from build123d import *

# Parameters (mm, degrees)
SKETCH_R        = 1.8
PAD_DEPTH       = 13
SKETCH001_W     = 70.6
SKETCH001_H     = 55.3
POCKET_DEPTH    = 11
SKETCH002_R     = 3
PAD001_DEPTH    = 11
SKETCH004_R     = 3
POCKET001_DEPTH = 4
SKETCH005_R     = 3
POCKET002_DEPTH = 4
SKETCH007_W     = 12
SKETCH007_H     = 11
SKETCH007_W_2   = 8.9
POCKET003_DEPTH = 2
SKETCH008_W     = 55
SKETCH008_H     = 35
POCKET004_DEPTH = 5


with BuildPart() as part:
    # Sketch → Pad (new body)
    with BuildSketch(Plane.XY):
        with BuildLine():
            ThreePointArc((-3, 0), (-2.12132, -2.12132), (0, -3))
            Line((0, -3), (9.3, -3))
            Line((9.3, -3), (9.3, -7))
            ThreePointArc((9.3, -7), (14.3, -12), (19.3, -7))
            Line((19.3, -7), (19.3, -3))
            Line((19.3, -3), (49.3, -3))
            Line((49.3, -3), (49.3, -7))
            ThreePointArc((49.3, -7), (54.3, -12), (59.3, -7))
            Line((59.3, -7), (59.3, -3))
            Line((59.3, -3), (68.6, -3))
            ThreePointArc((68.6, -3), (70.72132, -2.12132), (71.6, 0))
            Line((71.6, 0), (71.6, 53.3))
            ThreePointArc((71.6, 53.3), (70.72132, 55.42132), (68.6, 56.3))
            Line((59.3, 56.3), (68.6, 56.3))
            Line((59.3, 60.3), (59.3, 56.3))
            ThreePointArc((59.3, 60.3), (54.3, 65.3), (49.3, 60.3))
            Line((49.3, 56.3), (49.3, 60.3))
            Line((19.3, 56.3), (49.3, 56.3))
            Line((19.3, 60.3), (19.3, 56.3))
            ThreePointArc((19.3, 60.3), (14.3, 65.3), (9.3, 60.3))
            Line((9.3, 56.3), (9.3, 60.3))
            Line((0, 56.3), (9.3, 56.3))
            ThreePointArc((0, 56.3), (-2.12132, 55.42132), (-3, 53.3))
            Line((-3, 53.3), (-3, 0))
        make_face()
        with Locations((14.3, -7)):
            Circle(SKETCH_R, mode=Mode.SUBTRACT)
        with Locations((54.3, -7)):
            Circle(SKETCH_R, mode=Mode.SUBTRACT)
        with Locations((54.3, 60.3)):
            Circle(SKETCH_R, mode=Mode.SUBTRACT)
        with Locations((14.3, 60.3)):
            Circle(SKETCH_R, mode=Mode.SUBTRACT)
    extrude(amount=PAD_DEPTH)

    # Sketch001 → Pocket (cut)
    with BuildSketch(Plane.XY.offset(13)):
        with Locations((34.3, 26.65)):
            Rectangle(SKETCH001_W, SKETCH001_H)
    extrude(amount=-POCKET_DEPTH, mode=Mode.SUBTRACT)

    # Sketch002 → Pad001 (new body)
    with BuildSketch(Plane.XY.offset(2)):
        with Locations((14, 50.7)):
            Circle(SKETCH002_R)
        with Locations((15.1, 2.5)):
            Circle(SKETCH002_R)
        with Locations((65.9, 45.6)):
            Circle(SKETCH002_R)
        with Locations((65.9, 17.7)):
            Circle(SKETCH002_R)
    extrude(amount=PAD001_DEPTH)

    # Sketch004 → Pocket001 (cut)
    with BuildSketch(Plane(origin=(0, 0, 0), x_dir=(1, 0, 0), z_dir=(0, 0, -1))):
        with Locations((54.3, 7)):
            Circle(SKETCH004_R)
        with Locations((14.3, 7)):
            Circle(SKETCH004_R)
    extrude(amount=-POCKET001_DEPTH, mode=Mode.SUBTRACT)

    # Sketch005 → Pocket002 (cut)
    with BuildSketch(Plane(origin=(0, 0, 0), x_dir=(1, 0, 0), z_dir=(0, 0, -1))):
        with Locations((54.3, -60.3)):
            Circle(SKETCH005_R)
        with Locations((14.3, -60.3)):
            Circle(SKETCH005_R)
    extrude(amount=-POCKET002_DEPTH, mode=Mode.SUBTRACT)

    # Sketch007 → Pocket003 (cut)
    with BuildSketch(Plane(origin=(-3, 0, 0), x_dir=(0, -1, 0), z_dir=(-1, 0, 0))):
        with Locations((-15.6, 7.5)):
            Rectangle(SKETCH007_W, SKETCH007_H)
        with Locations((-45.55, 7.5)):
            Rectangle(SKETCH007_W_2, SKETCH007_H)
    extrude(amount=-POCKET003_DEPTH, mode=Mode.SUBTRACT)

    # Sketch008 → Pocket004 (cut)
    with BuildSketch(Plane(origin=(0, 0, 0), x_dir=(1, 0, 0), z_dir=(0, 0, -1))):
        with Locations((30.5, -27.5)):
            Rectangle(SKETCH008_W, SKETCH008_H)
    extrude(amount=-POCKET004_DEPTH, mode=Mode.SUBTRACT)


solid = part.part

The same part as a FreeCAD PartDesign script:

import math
import FreeCAD as App
import Part
import Sketcher

doc = App.newDocument("Part")
body = doc.addObject("PartDesign::Body", "Body")

# Sketch on XY plane
sketch1 = body.newObject("Sketcher::SketchObject", "Sketch")
sketch1.AttachmentSupport = (doc.getObject("XY_Plane"), [""])
sketch1.MapMode = "FlatFace"
sketch1.addGeometry(Part.ArcOfCircle(Part.Circle(App.Vector(0, 0, 0), App.Vector(0, 0, 1), 3), math.radians(-180), math.radians(-90)), False)
sketch1.addGeometry(Part.LineSegment(App.Vector(0, -3, 0), App.Vector(9.3, -3, 0)), False)
sketch1.addGeometry(Part.LineSegment(App.Vector(9.3, -3, 0), App.Vector(9.3, -7, 0)), False)
sketch1.addGeometry(Part.ArcOfCircle(Part.Circle(App.Vector(14.3, -7, 0), App.Vector(0, 0, 1), 5), math.radians(180), math.radians(360)), False)
sketch1.addGeometry(Part.LineSegment(App.Vector(19.3, -7, 0), App.Vector(19.3, -3, 0)), False)
sketch1.addGeometry(Part.LineSegment(App.Vector(19.3, -3, 0), App.Vector(49.3, -3, 0)), False)
sketch1.addGeometry(Part.LineSegment(App.Vector(49.3, -3, 0), App.Vector(49.3, -7, 0)), False)
sketch1.addGeometry(Part.ArcOfCircle(Part.Circle(App.Vector(54.3, -7, 0), App.Vector(0, 0, 1), 5), math.radians(180), math.radians(360)), False)
sketch1.addGeometry(Part.LineSegment(App.Vector(59.3, -7, 0), App.Vector(59.3, -3, 0)), False)
sketch1.addGeometry(Part.LineSegment(App.Vector(59.3, -3, 0), App.Vector(68.6, -3, 0)), False)
sketch1.addGeometry(Part.ArcOfCircle(Part.Circle(App.Vector(68.6, 0, 0), App.Vector(0, 0, 1), 3), math.radians(-90), math.radians(0)), False)
sketch1.addGeometry(Part.LineSegment(App.Vector(71.6, 0, 0), App.Vector(71.6, 53.3, 0)), False)
sketch1.addGeometry(Part.ArcOfCircle(Part.Circle(App.Vector(68.6, 53.3, 0), App.Vector(0, 0, 1), 3), math.radians(0), math.radians(90)), False)
sketch1.addGeometry(Part.LineSegment(App.Vector(68.6, 56.3, 0), App.Vector(59.3, 56.3, 0)), False)
sketch1.addGeometry(Part.LineSegment(App.Vector(59.3, 56.3, 0), App.Vector(59.3, 60.3, 0)), False)
sketch1.addGeometry(Part.ArcOfCircle(Part.Circle(App.Vector(54.3, 60.3, 0), App.Vector(0, 0, 1), 5), math.radians(0), math.radians(180)), False)
sketch1.addGeometry(Part.LineSegment(App.Vector(49.3, 60.3, 0), App.Vector(49.3, 56.3, 0)), False)
sketch1.addGeometry(Part.LineSegment(App.Vector(49.3, 56.3, 0), App.Vector(19.3, 56.3, 0)), False)
sketch1.addGeometry(Part.LineSegment(App.Vector(19.3, 56.3, 0), App.Vector(19.3, 60.3, 0)), False)
sketch1.addGeometry(Part.ArcOfCircle(Part.Circle(App.Vector(14.3, 60.3, 0), App.Vector(0, 0, 1), 5), math.radians(0), math.radians(180)), False)
sketch1.addGeometry(Part.LineSegment(App.Vector(9.3, 60.3, 0), App.Vector(9.3, 56.3, 0)), False)
sketch1.addGeometry(Part.LineSegment(App.Vector(9.3, 56.3, 0), App.Vector(0, 56.3, 0)), False)
sketch1.addGeometry(Part.ArcOfCircle(Part.Circle(App.Vector(0, 53.3, 0), App.Vector(0, 0, 1), 3), math.radians(90), math.radians(180)), False)
sketch1.addGeometry(Part.LineSegment(App.Vector(-3, 53.3, 0), App.Vector(-3, 0, 0)), False)
sketch1.addGeometry(Part.Circle(App.Vector(14.3, -7, 0), App.Vector(0, 0, 1), 1.8), False)
sketch1.addGeometry(Part.Circle(App.Vector(54.3, -7, 0), App.Vector(0, 0, 1), 1.8), False)
sketch1.addGeometry(Part.Circle(App.Vector(14.3, 60.3, 0), App.Vector(0, 0, 1), 1.8), False)
sketch1.addGeometry(Part.Circle(App.Vector(54.3, 60.3, 0), App.Vector(0, 0, 1), 1.8), False)
sketch1.addConstraint(Sketcher.Constraint("Tangent", 0, 2, 1, 1))
sketch1.addConstraint(Sketcher.Constraint("Coincident", 1, 2, 2, 1))
sketch1.addConstraint(Sketcher.Constraint("Tangent", 2, 2, 3, 1))
sketch1.addConstraint(Sketcher.Constraint("Tangent", 3, 2, 4, 1))
sketch1.addConstraint(Sketcher.Constraint("Coincident", 4, 2, 5, 1))
sketch1.addConstraint(Sketcher.Constraint("Coincident", 5, 2, 6, 1))
sketch1.addConstraint(Sketcher.Constraint("Tangent", 6, 2, 7, 1))
sketch1.addConstraint(Sketcher.Constraint("Tangent", 7, 2, 8, 1))
sketch1.addConstraint(Sketcher.Constraint("Coincident", 8, 2, 9, 1))
sketch1.addConstraint(Sketcher.Constraint("Tangent", 9, 2, 10, 1))
sketch1.addConstraint(Sketcher.Constraint("Tangent", 10, 2, 11, 1))
sketch1.addConstraint(Sketcher.Constraint("Tangent", 11, 2, 12, 1))
sketch1.addConstraint(Sketcher.Constraint("Tangent", 12, 2, 13, 1))
sketch1.addConstraint(Sketcher.Constraint("Coincident", 13, 2, 14, 1))
sketch1.addConstraint(Sketcher.Constraint("Tangent", 14, 2, 15, 1))
sketch1.addConstraint(Sketcher.Constraint("Tangent", 15, 2, 16, 1))
sketch1.addConstraint(Sketcher.Constraint("Coincident", 16, 2, 17, 1))
sketch1.addConstraint(Sketcher.Constraint("Coincident", 17, 2, 18, 1))
sketch1.addConstraint(Sketcher.Constraint("Tangent", 18, 2, 19, 1))
sketch1.addConstraint(Sketcher.Constraint("Tangent", 19, 2, 20, 1))
sketch1.addConstraint(Sketcher.Constraint("Coincident", 20, 2, 21, 1))
sketch1.addConstraint(Sketcher.Constraint("Tangent", 21, 2, 22, 1))
sketch1.addConstraint(Sketcher.Constraint("Tangent", 22, 2, 23, 1))
sketch1.addConstraint(Sketcher.Constraint("Tangent", 23, 2, 0, 1))
sketch1.addConstraint(Sketcher.Constraint("Horizontal", 1))
sketch1.addConstraint(Sketcher.Constraint("Vertical", 2))
sketch1.addConstraint(Sketcher.Constraint("Vertical", 4))
sketch1.addConstraint(Sketcher.Constraint("Horizontal", 5))
sketch1.addConstraint(Sketcher.Constraint("Vertical", 6))
sketch1.addConstraint(Sketcher.Constraint("Vertical", 8))
sketch1.addConstraint(Sketcher.Constraint("Horizontal", 9))
sketch1.addConstraint(Sketcher.Constraint("Vertical", 11))
sketch1.addConstraint(Sketcher.Constraint("Horizontal", 13))
sketch1.addConstraint(Sketcher.Constraint("Vertical", 14))
sketch1.addConstraint(Sketcher.Constraint("Vertical", 16))
sketch1.addConstraint(Sketcher.Constraint("Horizontal", 17))
sketch1.addConstraint(Sketcher.Constraint("Vertical", 18))
sketch1.addConstraint(Sketcher.Constraint("Vertical", 20))
sketch1.addConstraint(Sketcher.Constraint("Horizontal", 21))
sketch1.addConstraint(Sketcher.Constraint("Vertical", 23))
sketch1.addConstraint(Sketcher.Constraint("Coincident", 0, 3, -1, 1))
sketch1.addConstraint(Sketcher.Constraint("Coincident", 24, 3, 3, 3))
sketch1.addConstraint(Sketcher.Constraint("Coincident", 25, 3, 7, 3))
sketch1.addConstraint(Sketcher.Constraint("Coincident", 26, 3, 19, 3))
sketch1.addConstraint(Sketcher.Constraint("Coincident", 27, 3, 15, 3))
sketch1.addConstraint(Sketcher.Constraint("Equal", 3, 7))
sketch1.addConstraint(Sketcher.Constraint("Equal", 0, 10))
sketch1.addConstraint(Sketcher.Constraint("Equal", 10, 12))
sketch1.addConstraint(Sketcher.Constraint("Equal", 7, 15))
sketch1.addConstraint(Sketcher.Constraint("Equal", 15, 19))
sketch1.addConstraint(Sketcher.Constraint("Equal", 12, 22))
sketch1.addConstraint(Sketcher.Constraint("Equal", 24, 25))
sketch1.addConstraint(Sketcher.Constraint("Equal", 25, 26))
sketch1.addConstraint(Sketcher.Constraint("Equal", 26, 27))
sketch1.addConstraint(Sketcher.Constraint("PointOnObject", 10, 3, -1))
sketch1.addConstraint(Sketcher.Constraint("Horizontal", 3, 3, 7, 3))
sketch1.addConstraint(Sketcher.Constraint("Horizontal", 15, 3, 19, 3))
sketch1.addConstraint(Sketcher.Constraint("Horizontal", 12, 3, 22, 3))
sketch1.addConstraint(Sketcher.Constraint("Horizontal", 1, 2, 4, 2))
sketch1.addConstraint(Sketcher.Constraint("Horizontal", 13, 2, 16, 2))
sketch1.addConstraint(Sketcher.Constraint("Vertical", 7, 3, 15, 3))
sketch1.addConstraint(Sketcher.Constraint("Vertical", 3, 3, 19, 3))
sketch1.addConstraint(Sketcher.Constraint("Equal", 1, 9))
sketch1.addConstraint(Sketcher.Constraint("Equal", 8, 14))
sketch1.addConstraint(Sketcher.Constraint("Radius", 0, 3.000001))
sketch1.addConstraint(Sketcher.Constraint("Radius", 3, 5.0))
sketch1.addConstraint(Sketcher.Constraint("Diameter", 24, 3.6))
sketch1.addConstraint(Sketcher.Constraint("DistanceX", 5, 1, 5, 2, 30.0))
sketch1.addConstraint(Sketcher.Constraint("DistanceY", 2, 2, 2, 1, 4.0))
sketch1.addConstraint(Sketcher.Constraint("DistanceX", 1, 1, 1, 2, 9.3))
sketch1.addConstraint(Sketcher.Constraint("DistanceY", 11, 1, 11, 2, 53.3))
pad1 = body.newObject("PartDesign::Pad", "Pad")
pad1.Profile = sketch1
pad1.Length = 13

# Sketch on XY plane
sketch2 = body.newObject("Sketcher::SketchObject", "Sketch001")
sketch2.AttachmentSupport = (doc.getObject("XY_Plane"), [""])
sketch2.MapMode = "FlatFace"
sketch2.AttachmentOffset = App.Placement(App.Vector(0, 0, 13), App.Rotation())
sketch2.addGeometry(Part.LineSegment(App.Vector(-1, 54, 0), App.Vector(-1, -1, 0)), False)
sketch2.addGeometry(Part.LineSegment(App.Vector(-1, -1, 0), App.Vector(70, -1, 0)), False)
sketch2.addGeometry(Part.LineSegment(App.Vector(70, -1, 0), App.Vector(70, 54, 0)), False)
sketch2.addGeometry(Part.LineSegment(App.Vector(70, 54, 0), App.Vector(-1, 54, 0)), False)
sketch2.addConstraint(Sketcher.Constraint("Coincident", 0, 2, 1, 1))
sketch2.addConstraint(Sketcher.Constraint("Coincident", 1, 2, 2, 1))
sketch2.addConstraint(Sketcher.Constraint("Coincident", 2, 2, 3, 1))
sketch2.addConstraint(Sketcher.Constraint("Coincident", 3, 2, 0, 1))
sketch2.addConstraint(Sketcher.Constraint("Vertical", 0))
sketch2.addConstraint(Sketcher.Constraint("Horizontal", 1))
sketch2.addConstraint(Sketcher.Constraint("Vertical", 2))
sketch2.addConstraint(Sketcher.Constraint("Horizontal", 3))
sketch2.addConstraint(Sketcher.Constraint("DistanceX", 1, 1, 1, 2, 70.6))
sketch2.addConstraint(Sketcher.Constraint("DistanceY", 0, 2, 0, 1, 55.3))
sketch2.addConstraint(Sketcher.Constraint("DistanceX", 0, 2, -1, 1, 1.0))
sketch2.addConstraint(Sketcher.Constraint("DistanceY", 0, 2, -1, 1, 1.0))
pocket1 = body.newObject("PartDesign::Pocket", "Pocket")
pocket1.Profile = sketch2
pocket1.Length = 11

# Sketch on XY plane
sketch3 = body.newObject("Sketcher::SketchObject", "Sketch002")
sketch3.AttachmentSupport = (doc.getObject("XY_Plane"), [""])
sketch3.MapMode = "FlatFace"
sketch3.AttachmentOffset = App.Placement(App.Vector(0, 0, 2), App.Rotation())
sketch3.addGeometry(Part.Circle(App.Vector(14, 50.7, 0), App.Vector(0, 0, 1), 3), False)
sketch3.addGeometry(Part.Circle(App.Vector(15.1, 2.5, 0), App.Vector(0, 0, 1), 3), False)
sketch3.addGeometry(Part.Circle(App.Vector(65.9, 45.6, 0), App.Vector(0, 0, 1), 3), False)
sketch3.addGeometry(Part.Circle(App.Vector(65.9, 17.7, 0), App.Vector(0, 0, 1), 3), False)
sketch3.addConstraint(Sketcher.Constraint("Equal", 0, 1))
sketch3.addConstraint(Sketcher.Constraint("Equal", 1, 2))
sketch3.addConstraint(Sketcher.Constraint("Equal", 2, 3))
sketch3.addConstraint(Sketcher.Constraint("Vertical", 2, 3, 3, 3))
sketch3.addConstraint(Sketcher.Constraint("Diameter", 0, 6.0))
sketch3.addConstraint(Sketcher.Constraint("DistanceX", -1, 1, 0, 3, 14.0))
sketch3.addConstraint(Sketcher.Constraint("DistanceY", 3, 3, 0, 3, 33.0))
sketch3.addConstraint(Sketcher.Constraint("DistanceY", -1, 1, 0, 3, 50.7))
sketch3.addConstraint(Sketcher.Constraint("DistanceX", -1, 1, 1, 3, 15.1))
sketch3.addConstraint(Sketcher.Constraint("DistanceY", -1, 1, 1, 3, 2.5))
sketch3.addConstraint(Sketcher.Constraint("DistanceX", -1, 1, 2, 3, 65.9))
sketch3.addConstraint(Sketcher.Constraint("DistanceY", -1, 1, 2, 3, 45.6))
pad2 = body.newObject("PartDesign::Pad", "Pad001")
pad2.Profile = sketch3
pad2.Length = 11

# Sketch on XY plane
sketch4 = body.newObject("Sketcher::SketchObject", "Sketch003")
sketch4.AttachmentSupport = (doc.getObject("XY_Plane"), [""])
sketch4.MapMode = "FlatFace"
sketch4.addGeometry(Part.Circle(App.Vector(54.3, -7, 0), App.Vector(0, 0, 1), 3), False)
sketch4.addGeometry(Part.Circle(App.Vector(14.3, -7, 0), App.Vector(0, 0, 1), 3), False)
sketch4.addConstraint(Sketcher.Constraint("Equal", 0, 1))
sketch4.addConstraint(Sketcher.Constraint("Horizontal", 0, 3, 1, 3))
sketch4.addConstraint(Sketcher.Constraint("Diameter", 0, 6.0))
sketch4.addConstraint(Sketcher.Constraint("DistanceY", 0, 3, -1, 1, 7.0))
sketch4.addConstraint(Sketcher.Constraint("DistanceX", 1, 3, 0, 3, 40.0))
sketch4.addConstraint(Sketcher.Constraint("DistanceX", -1, 1, 0, 3, 54.3))
pocket2 = body.newObject("PartDesign::Pocket", "Pocket001")
pocket2.Profile = sketch4
pocket2.Length = 4
pocket2.Reversed = True

# Sketch on XY plane
sketch5 = body.newObject("Sketcher::SketchObject", "Sketch004")
sketch5.AttachmentSupport = (doc.getObject("XY_Plane"), [""])
sketch5.MapMode = "FlatFace"
sketch5.addGeometry(Part.Circle(App.Vector(54.3, 60.3, 0), App.Vector(0, 0, 1), 3), False)
sketch5.addGeometry(Part.Circle(App.Vector(14.3, 60.3, 0), App.Vector(0, 0, 1), 3), False)
sketch5.addConstraint(Sketcher.Constraint("Equal", 0, 1))
sketch5.addConstraint(Sketcher.Constraint("Horizontal", 0, 3, 1, 3))
sketch5.addConstraint(Sketcher.Constraint("Diameter", 0, 6.0))
sketch5.addConstraint(Sketcher.Constraint("DistanceX", 1, 3, 0, 3, 40.0))
sketch5.addConstraint(Sketcher.Constraint("DistanceX", -1, 1, 0, 3, 54.3))
sketch5.addConstraint(Sketcher.Constraint("DistanceY", -1, 1, 0, 3, 60.3))
pocket3 = body.newObject("PartDesign::Pocket", "Pocket002")
pocket3.Profile = sketch5
pocket3.Length = 4
pocket3.Reversed = True

# Sketch on YZ plane
sketch6 = body.newObject("Sketcher::SketchObject", "Sketch005")
sketch6.AttachmentSupport = (doc.getObject("YZ_Plane"), [""])
sketch6.MapMode = "FlatFace"
sketch6.AttachmentOffset = App.Placement(App.Vector(0, 0, -3), App.Rotation())
sketch6.addGeometry(Part.LineSegment(App.Vector(22, 13, 0), App.Vector(22, 2, 0)), False)
sketch6.addGeometry(Part.LineSegment(App.Vector(22, 2, 0), App.Vector(10, 2, 0)), False)
sketch6.addGeometry(Part.LineSegment(App.Vector(10, 2, 0), App.Vector(10, 13, 0)), False)
sketch6.addGeometry(Part.LineSegment(App.Vector(10, 13, 0), App.Vector(22, 13, 0)), False)
sketch6.addGeometry(Part.LineSegment(App.Vector(50, 13, 0), App.Vector(50, 2, 0)), False)
sketch6.addGeometry(Part.LineSegment(App.Vector(50, 2, 0), App.Vector(41, 2, 0)), False)
sketch6.addGeometry(Part.LineSegment(App.Vector(41, 2, 0), App.Vector(41, 13, 0)), False)
sketch6.addGeometry(Part.LineSegment(App.Vector(41, 13, 0), App.Vector(50, 13, 0)), False)
sketch6.addConstraint(Sketcher.Constraint("Coincident", 0, 2, 1, 1))
sketch6.addConstraint(Sketcher.Constraint("Coincident", 1, 2, 2, 1))
sketch6.addConstraint(Sketcher.Constraint("Coincident", 2, 2, 3, 1))
sketch6.addConstraint(Sketcher.Constraint("Coincident", 3, 2, 0, 1))
sketch6.addConstraint(Sketcher.Constraint("Coincident", 4, 2, 5, 1))
sketch6.addConstraint(Sketcher.Constraint("Coincident", 5, 2, 6, 1))
sketch6.addConstraint(Sketcher.Constraint("Coincident", 6, 2, 7, 1))
sketch6.addConstraint(Sketcher.Constraint("Coincident", 7, 2, 4, 1))
sketch6.addConstraint(Sketcher.Constraint("Vertical", 0))
sketch6.addConstraint(Sketcher.Constraint("Horizontal", 1))
sketch6.addConstraint(Sketcher.Constraint("Vertical", 2))
sketch6.addConstraint(Sketcher.Constraint("Horizontal", 3))
sketch6.addConstraint(Sketcher.Constraint("Vertical", 4))
sketch6.addConstraint(Sketcher.Constraint("Horizontal", 5))
sketch6.addConstraint(Sketcher.Constraint("Vertical", 6))
sketch6.addConstraint(Sketcher.Constraint("Horizontal", 7))
sketch6.addConstraint(Sketcher.Constraint("Horizontal", 1, 2, 4, 2))
sketch6.addConstraint(Sketcher.Constraint("Horizontal", 3, 2, 6, 2))
sketch6.addConstraint(Sketcher.Constraint("DistanceX", 1, 2, 1, 1, 12.0))
sketch6.addConstraint(Sketcher.Constraint("DistanceY", 0, 2, 0, 1, 11.0))
sketch6.addConstraint(Sketcher.Constraint("DistanceX", 5, 2, 5, 1, 8.9))
sketch6.addConstraint(Sketcher.Constraint("DistanceY", -1, 1, 0, 2, 2.0))
sketch6.addConstraint(Sketcher.Constraint("DistanceX", -1, 1, 4, 2, 50.0))
sketch6.addConstraint(Sketcher.Constraint("DistanceX", -1, 1, 0, 2, 21.6))
pocket4 = body.newObject("PartDesign::Pocket", "Pocket003")
pocket4.Profile = sketch6
pocket4.Length = 2
pocket4.Reversed = True

# Sketch on XY plane
sketch7 = body.newObject("Sketcher::SketchObject", "Sketch006")
sketch7.AttachmentSupport = (doc.getObject("XY_Plane"), [""])
sketch7.MapMode = "FlatFace"
sketch7.addGeometry(Part.LineSegment(App.Vector(3, 10, 0), App.Vector(3, 45, 0)), False)
sketch7.addGeometry(Part.LineSegment(App.Vector(3, 45, 0), App.Vector(58, 45, 0)), False)
sketch7.addGeometry(Part.LineSegment(App.Vector(58, 45, 0), App.Vector(58, 10, 0)), False)
sketch7.addGeometry(Part.LineSegment(App.Vector(58, 10, 0), App.Vector(3, 10, 0)), False)
sketch7.addConstraint(Sketcher.Constraint("Coincident", 0, 2, 1, 1))
sketch7.addConstraint(Sketcher.Constraint("Coincident", 1, 2, 2, 1))
sketch7.addConstraint(Sketcher.Constraint("Coincident", 2, 2, 3, 1))
sketch7.addConstraint(Sketcher.Constraint("Coincident", 3, 2, 0, 1))
sketch7.addConstraint(Sketcher.Constraint("Vertical", 0))
sketch7.addConstraint(Sketcher.Constraint("Horizontal", 1))
sketch7.addConstraint(Sketcher.Constraint("Vertical", 2))
sketch7.addConstraint(Sketcher.Constraint("Horizontal", 3))
sketch7.addConstraint(Sketcher.Constraint("DistanceX", 1, 1, 1, 2, 55.0))
sketch7.addConstraint(Sketcher.Constraint("DistanceY", 0, 1, 0, 2, 35.0))
sketch7.addConstraint(Sketcher.Constraint("DistanceX", -1, 1, 0, 2, 3.0))
sketch7.addConstraint(Sketcher.Constraint("DistanceY", -1, 1, 0, 2, 45.0))
pocket5 = body.newObject("PartDesign::Pocket", "Pocket004")
pocket5.Profile = sketch7
pocket5.Length = 5
pocket5.Reversed = True

doc.recompute()
